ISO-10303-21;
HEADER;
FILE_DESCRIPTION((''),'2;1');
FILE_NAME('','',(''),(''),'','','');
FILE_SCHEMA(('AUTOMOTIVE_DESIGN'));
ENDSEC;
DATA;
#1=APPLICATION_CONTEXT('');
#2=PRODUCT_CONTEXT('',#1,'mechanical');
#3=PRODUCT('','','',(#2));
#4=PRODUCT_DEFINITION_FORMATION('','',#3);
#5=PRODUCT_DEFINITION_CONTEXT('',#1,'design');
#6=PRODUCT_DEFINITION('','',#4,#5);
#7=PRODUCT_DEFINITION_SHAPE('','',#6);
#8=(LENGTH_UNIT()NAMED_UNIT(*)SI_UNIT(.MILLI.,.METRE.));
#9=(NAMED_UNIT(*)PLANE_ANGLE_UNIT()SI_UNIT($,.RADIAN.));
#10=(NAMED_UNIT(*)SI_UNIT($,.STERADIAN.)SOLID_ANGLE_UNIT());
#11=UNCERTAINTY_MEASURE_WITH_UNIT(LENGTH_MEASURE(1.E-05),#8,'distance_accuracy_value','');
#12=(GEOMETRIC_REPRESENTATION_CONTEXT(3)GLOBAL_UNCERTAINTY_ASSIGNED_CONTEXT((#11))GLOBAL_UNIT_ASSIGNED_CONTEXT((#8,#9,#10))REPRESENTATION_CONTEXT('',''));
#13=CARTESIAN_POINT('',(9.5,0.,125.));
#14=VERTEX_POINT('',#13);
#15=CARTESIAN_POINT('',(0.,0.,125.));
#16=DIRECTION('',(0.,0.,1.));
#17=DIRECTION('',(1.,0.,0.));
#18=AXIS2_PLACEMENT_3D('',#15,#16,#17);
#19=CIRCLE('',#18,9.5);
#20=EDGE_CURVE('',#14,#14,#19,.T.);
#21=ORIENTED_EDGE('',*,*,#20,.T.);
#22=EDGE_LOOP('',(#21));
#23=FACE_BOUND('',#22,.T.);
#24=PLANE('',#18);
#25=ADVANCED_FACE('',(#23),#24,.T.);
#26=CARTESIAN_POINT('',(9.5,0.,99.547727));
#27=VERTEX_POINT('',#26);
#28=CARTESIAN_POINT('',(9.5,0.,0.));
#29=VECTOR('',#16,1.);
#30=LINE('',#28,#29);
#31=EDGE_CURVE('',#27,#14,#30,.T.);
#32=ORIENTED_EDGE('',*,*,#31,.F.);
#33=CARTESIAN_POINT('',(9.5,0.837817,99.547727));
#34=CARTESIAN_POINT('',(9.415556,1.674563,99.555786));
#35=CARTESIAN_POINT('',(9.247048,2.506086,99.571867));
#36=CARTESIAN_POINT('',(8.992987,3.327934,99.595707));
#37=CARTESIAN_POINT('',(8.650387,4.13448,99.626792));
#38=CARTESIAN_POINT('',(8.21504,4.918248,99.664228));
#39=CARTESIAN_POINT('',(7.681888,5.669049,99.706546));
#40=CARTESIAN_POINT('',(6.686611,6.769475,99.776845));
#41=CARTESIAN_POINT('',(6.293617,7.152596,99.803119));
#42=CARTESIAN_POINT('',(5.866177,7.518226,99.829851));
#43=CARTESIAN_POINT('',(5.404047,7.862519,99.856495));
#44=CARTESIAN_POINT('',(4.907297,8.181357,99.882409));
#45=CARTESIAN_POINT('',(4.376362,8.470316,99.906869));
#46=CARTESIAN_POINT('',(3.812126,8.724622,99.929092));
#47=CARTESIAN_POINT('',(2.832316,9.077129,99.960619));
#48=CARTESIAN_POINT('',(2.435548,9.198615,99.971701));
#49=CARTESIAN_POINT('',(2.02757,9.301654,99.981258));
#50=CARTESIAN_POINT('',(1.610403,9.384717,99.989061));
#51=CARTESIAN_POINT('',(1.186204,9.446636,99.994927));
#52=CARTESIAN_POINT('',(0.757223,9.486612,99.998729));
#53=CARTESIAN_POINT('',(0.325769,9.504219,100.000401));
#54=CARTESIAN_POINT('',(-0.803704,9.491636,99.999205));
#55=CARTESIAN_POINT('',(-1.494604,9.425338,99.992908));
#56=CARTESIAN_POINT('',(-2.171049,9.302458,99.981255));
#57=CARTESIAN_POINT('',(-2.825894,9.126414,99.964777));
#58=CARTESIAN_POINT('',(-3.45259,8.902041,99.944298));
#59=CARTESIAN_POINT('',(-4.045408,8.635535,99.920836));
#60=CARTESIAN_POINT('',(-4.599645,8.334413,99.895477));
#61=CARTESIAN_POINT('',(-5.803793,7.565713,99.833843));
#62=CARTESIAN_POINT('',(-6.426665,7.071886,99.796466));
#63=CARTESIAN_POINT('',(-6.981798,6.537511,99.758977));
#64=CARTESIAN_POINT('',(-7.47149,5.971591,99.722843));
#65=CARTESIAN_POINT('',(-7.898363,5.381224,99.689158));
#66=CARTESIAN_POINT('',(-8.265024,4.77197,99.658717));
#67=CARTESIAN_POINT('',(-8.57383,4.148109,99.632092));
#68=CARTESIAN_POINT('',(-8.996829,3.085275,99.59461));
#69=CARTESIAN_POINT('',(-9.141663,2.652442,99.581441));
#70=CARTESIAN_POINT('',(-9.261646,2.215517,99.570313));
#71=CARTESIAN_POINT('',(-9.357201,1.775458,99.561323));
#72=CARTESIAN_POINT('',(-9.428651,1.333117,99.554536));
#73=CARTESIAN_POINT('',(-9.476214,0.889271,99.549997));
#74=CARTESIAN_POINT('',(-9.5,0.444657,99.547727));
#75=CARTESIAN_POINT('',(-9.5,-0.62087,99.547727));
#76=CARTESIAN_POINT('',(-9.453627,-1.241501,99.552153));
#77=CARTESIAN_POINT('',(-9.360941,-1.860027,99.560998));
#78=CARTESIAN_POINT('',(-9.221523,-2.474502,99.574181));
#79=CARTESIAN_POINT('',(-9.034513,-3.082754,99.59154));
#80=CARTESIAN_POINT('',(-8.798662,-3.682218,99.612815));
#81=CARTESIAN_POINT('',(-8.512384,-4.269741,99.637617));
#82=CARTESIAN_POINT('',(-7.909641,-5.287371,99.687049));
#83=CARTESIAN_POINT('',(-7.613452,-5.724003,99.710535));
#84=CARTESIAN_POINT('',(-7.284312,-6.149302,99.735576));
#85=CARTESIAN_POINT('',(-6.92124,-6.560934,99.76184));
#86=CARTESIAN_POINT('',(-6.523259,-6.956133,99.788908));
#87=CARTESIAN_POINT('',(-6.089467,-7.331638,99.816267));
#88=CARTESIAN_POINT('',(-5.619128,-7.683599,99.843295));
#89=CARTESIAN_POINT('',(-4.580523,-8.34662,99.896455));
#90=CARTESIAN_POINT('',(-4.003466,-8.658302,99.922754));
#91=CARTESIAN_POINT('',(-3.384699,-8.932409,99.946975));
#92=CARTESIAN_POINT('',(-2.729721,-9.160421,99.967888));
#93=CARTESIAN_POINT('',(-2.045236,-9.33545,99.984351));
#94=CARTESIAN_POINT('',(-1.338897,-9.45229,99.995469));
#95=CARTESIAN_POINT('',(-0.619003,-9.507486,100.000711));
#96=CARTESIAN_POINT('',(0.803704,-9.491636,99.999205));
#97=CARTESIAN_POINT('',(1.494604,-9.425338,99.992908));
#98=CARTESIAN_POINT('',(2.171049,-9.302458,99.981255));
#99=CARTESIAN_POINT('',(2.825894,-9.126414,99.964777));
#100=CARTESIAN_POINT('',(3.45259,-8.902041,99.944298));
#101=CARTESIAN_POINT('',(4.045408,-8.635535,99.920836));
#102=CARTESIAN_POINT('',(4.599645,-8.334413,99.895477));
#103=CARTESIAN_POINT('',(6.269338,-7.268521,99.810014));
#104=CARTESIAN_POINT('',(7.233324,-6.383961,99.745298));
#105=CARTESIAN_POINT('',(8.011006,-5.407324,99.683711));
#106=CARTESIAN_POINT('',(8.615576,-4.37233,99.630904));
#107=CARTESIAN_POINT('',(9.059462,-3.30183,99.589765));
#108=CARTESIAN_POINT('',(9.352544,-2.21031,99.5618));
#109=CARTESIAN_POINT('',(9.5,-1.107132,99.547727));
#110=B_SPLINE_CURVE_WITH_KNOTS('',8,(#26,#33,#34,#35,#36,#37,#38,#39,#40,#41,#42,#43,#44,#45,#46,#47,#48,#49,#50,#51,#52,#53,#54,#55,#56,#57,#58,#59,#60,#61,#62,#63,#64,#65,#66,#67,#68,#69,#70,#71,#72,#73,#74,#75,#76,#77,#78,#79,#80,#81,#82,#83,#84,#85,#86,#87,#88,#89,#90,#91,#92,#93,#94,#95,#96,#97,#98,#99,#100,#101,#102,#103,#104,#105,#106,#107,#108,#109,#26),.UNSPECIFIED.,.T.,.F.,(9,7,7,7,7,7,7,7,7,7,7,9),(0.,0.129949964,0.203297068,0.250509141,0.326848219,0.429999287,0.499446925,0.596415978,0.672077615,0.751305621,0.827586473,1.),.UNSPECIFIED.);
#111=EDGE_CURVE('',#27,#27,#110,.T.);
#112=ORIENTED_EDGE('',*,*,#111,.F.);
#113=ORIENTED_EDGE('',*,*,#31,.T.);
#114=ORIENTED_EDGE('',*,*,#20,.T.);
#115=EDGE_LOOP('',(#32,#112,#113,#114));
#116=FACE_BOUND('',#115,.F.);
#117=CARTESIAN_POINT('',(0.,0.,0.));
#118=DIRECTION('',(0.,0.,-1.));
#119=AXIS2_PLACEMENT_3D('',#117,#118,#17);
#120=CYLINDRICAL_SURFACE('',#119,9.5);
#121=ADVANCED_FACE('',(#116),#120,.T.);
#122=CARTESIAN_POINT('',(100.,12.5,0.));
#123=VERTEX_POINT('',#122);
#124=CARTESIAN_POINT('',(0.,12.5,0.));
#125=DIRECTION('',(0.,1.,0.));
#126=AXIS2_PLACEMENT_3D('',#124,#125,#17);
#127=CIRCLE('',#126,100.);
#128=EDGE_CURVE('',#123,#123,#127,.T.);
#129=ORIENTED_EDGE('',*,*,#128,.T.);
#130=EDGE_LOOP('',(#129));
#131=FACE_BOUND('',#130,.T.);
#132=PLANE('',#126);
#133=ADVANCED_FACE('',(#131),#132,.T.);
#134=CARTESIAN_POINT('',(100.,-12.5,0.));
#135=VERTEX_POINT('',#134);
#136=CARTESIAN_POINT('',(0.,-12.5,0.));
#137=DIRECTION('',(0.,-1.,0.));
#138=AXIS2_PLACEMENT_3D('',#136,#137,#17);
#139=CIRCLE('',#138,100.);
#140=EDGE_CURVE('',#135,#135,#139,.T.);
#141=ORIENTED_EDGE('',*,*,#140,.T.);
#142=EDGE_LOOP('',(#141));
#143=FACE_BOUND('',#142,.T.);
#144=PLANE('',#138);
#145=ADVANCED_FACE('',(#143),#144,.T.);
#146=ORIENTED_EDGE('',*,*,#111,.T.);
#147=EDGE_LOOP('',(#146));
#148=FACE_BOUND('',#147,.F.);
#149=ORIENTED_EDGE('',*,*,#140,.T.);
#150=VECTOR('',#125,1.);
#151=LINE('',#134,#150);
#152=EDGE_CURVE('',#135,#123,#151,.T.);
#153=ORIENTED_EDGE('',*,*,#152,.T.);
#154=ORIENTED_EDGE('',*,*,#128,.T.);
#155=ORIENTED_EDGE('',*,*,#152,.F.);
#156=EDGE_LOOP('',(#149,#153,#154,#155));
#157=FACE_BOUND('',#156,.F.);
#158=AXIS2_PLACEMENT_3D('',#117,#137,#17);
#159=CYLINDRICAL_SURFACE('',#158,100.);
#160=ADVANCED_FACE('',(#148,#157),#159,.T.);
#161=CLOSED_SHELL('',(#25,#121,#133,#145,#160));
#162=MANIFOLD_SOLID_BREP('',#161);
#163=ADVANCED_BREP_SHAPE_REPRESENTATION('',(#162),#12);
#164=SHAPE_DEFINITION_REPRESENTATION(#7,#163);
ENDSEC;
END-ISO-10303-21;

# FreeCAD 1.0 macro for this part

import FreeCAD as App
import Part
import Sketcher

V = App.Vector
Q = App.Units.Quantity

doc = App.newDocument("Part")
body = doc.addObject("PartDesign::Body", "Body")

# Sketch on XZ plane
sketch1 = body.newObject("Sketcher::SketchObject", "Sketch")
sketch1.AttachmentSupport = (doc.getObject("XZ_Plane"), [""])
sketch1.MapMode = "FlatFace"
sketch1.addGeometry(Part.Circle(V(0, 0, 0), V(0, 0, 1), 100), False)
sketch1.addConstraint([
    Sketcher.Constraint("Coincident", 0, 3, -1, 1),
    Sketcher.Constraint("Diameter", 0, Q("200 mm")),
])
pad1 = body.newObject("PartDesign::Pad", "Pad")
pad1.Profile = sketch1
pad1.Length = 12.5

# Sketch on XZ plane
sketch2 = body.newObject("Sketcher::SketchObject", "Sketch001")
sketch2.AttachmentSupport = (doc.getObject("XZ_Plane"), [""])
sketch2.MapMode = "FlatFace"
sketch2.addGeometry(Part.Circle(V(0, 0, 0), V(0, 0, 1), 100), False)
sketch2.addConstraint([
    Sketcher.Constraint("Coincident", 0, 3, -1, 1),
    Sketcher.Constraint("Diameter", 0, Q("200 mm")),
])
pad2 = body.newObject("PartDesign::Pad", "Pad001")
pad2.Profile = sketch2
pad2.Length = 12.5
pad2.Reversed = True

# Sketch on XY plane
sketch3 = body.newObject("Sketcher::SketchObject", "Sketch002")
sketch3.AttachmentSupport = (doc.getObject("XY_Plane"), [""])
sketch3.MapMode = "FlatFace"
sketch3.addGeometry(Part.Circle(V(0, 0, 0), V(0, 0, 1), 9.5), False)
sketch3.addConstraint([
    Sketcher.Constraint("Coincident", 0, 3, -1, 1),
    Sketcher.Constraint("Diameter", 0, Q("19 mm")),
])
pad3 = body.newObject("PartDesign::Pad", "Pad002")
pad3.Profile = sketch3
pad3.Length = 125

doc.recompute()
